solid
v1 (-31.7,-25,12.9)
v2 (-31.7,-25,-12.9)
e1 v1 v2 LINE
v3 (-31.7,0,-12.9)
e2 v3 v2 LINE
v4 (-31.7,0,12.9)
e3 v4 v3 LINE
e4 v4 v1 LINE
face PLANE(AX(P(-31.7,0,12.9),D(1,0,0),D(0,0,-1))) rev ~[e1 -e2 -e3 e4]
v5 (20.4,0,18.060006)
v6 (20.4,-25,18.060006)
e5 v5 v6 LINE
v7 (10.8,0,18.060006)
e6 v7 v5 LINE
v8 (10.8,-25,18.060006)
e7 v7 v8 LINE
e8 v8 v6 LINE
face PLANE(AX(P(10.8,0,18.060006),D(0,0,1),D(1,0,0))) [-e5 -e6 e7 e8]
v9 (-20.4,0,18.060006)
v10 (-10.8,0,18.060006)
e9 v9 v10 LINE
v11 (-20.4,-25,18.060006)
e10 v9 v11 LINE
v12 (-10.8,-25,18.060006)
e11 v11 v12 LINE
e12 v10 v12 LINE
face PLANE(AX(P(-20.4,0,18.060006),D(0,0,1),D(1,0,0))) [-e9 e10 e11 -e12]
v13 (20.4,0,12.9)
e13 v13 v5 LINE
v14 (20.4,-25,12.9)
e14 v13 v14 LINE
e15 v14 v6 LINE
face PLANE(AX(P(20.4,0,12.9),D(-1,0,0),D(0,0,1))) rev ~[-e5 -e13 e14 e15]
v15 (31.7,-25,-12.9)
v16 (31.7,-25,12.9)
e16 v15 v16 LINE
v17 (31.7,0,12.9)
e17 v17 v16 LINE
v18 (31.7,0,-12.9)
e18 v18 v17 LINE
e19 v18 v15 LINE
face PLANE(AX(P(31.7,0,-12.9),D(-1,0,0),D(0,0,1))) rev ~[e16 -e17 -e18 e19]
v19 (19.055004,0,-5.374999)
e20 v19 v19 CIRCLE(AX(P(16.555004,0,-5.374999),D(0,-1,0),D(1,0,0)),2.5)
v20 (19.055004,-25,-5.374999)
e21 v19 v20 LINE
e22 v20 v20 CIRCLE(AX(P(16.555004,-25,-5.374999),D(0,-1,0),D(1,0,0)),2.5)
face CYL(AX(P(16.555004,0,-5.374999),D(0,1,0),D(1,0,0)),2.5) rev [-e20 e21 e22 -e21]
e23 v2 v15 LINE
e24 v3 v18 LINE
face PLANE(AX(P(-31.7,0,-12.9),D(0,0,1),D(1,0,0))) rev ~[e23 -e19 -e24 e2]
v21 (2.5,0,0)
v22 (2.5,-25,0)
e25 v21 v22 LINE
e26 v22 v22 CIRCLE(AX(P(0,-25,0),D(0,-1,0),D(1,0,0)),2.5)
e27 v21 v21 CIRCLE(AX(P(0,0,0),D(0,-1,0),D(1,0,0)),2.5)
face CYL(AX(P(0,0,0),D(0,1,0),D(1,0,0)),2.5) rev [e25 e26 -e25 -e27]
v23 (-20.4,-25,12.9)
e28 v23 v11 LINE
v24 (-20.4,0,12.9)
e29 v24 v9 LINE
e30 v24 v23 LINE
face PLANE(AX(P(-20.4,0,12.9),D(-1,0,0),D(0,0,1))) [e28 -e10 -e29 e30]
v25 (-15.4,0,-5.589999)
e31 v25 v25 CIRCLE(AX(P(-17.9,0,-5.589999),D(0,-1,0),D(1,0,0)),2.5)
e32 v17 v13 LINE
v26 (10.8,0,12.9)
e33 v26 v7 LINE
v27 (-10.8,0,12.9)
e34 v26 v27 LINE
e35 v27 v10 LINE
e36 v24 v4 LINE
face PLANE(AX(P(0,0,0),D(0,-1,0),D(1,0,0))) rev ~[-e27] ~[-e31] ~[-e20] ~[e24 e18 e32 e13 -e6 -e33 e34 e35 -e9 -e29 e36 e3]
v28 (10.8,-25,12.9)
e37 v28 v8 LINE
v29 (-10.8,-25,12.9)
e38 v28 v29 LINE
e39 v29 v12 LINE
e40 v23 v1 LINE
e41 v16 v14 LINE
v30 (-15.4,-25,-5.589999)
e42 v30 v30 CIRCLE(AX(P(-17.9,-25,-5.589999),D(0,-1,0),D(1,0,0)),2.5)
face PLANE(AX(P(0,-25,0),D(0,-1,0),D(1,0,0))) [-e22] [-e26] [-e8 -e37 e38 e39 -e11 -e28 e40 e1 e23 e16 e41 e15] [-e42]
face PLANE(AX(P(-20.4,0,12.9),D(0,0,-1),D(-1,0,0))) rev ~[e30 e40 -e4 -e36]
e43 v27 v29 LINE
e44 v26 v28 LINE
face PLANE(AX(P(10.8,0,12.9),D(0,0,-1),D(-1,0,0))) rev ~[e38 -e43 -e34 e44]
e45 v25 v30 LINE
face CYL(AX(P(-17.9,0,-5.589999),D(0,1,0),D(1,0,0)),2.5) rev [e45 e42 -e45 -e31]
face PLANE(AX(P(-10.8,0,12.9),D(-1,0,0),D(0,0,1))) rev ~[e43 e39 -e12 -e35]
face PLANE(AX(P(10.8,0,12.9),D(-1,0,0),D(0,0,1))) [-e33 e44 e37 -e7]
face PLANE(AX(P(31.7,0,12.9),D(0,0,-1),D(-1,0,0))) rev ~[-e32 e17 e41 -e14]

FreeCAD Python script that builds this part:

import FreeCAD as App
import Part
import Sketcher

V = App.Vector
Q = App.Units.Quantity

doc = App.newDocument("Part")
params = doc.addObject("Spreadsheet::Sheet", "Params")
for row, (alias, value) in enumerate([
    ("sketch1_diameter", "5 mm"),
    ("sketch1_width", "63.4 mm"),
    ("sketch1_width2", "11.3 mm"),
    ("sketch1_width3", "9.6 mm"),
    ("sketch1_height", "25.8 mm"),
    ("pad1_length", "25 mm"),
], start=1):
    params.set(f"A{row}", alias)
    params.set(f"B{row}", "=" + value)
    params.setAlias(f"B{row}", alias)

body = doc.addObject("PartDesign::Body", "Body")

sketch1 = body.newObject("Sketcher::SketchObject", "Sketch")
sketch1.AttachmentSupport = (doc.getObject("XZ_Plane"), [""])
sketch1.MapMode = "FlatFace"
sketch1.addGeometry([
    Part.LineSegment(V(-31.7, 12.9, 0), V(-31.7, -12.9, 0)),
    Part.LineSegment(V(-31.7, -12.9, 0), V(31.7, -12.9, 0)),
    Part.LineSegment(V(31.7, -12.9, 0), V(31.7, 12.9, 0)),
    Part.LineSegment(V(31.7, 12.9, 0), V(20.4, 12.9, 0)),
    Part.LineSegment(V(20.4, 12.9, 0), V(20.4, 18.1, 0)),
    Part.LineSegment(V(20.4, 18.1, 0), V(10.8, 18.1, 0)),
    Part.LineSegment(V(10.8, 18.1, 0), V(10.8, 12.9, 0)),
    Part.LineSegment(V(10.8, 12.9, 0), V(-10.8, 12.9, 0)),
    Part.LineSegment(V(-10.8, 12.9, 0), V(-10.8, 18.1, 0)),
    Part.LineSegment(V(-10.8, 18.1, 0), V(-20.4, 18.1, 0)),
    Part.LineSegment(V(-20.4, 18.1, 0), V(-20.4, 12.9, 0)),
    Part.LineSegment(V(-20.4, 12.9, 0), V(-31.7, 12.9, 0)),
    Part.Circle(V(-17.9, -5.6, 0), V(0, 0, 1), 2.5),
    Part.Circle(V(16.6, -5.4, 0), V(0, 0, 1), 2.5),
    Part.Circle(V(0, 0, 0), V(0, 0, 1), 2.5),
], False)
sketch1.addConstraint([
    Sketcher.Constraint("Coincident", 0, 2, 1, 1),
    Sketcher.Constraint("Coincident", 1, 2, 2, 1),
    Sketcher.Constraint("Coincident", 2, 2, 3, 1),
    Sketcher.Constraint("Coincident", 3, 2, 4, 1),
    Sketcher.Constraint("Coincident", 4, 2, 5, 1),
    Sketcher.Constraint("Coincident", 5, 2, 6, 1),
    Sketcher.Constraint("Coincident", 6, 2, 7, 1),
    Sketcher.Constraint("Coincident", 7, 2, 8, 1),
    Sketcher.Constraint("Coincident", 8, 2, 9, 1),
    Sketcher.Constraint("Coincident", 9, 2, 10, 1),
    Sketcher.Constraint("Coincident", 10, 2, 11, 1),
    Sketcher.Constraint("Coincident", 11, 2, 0, 1),
    Sketcher.Constraint("Vertical", 0),
    Sketcher.Constraint("Horizontal", 1),
    Sketcher.Constraint("Vertical", 2),
    Sketcher.Constraint("Horizontal", 3),
    Sketcher.Constraint("Vertical", 4),
    Sketcher.Constraint("Horizontal", 5),
    Sketcher.Constraint("Vertical", 6),
    Sketcher.Constraint("Horizontal", 7),
    Sketcher.Constraint("Vertical", 8),
    Sketcher.Constraint("Horizontal", 9),
    Sketcher.Constraint("Vertical", 10),
    Sketcher.Constraint("Horizontal", 11),
    Sketcher.Constraint("Coincident", 14, 3, -1, 1),
    Sketcher.Constraint("Equal", 12, 13),
    Sketcher.Constraint("Equal", 13, 14),
    Sketcher.Constraint("Symmetric", 0, 2, 2, 2, -1, 1),
    Sketcher.Constraint("Symmetric", 5, 2, 8, 2, -2),
    Sketcher.Constraint("Symmetric", 3, 2, 10, 2, -2),
    Sketcher.Constraint("Horizontal", 3, 2, 6, 2),
    Sketcher.Constraint("Diameter", 12, Q("5 mm")),
    Sketcher.Constraint("DistanceX", 1, 1, 1, 2, Q("63.4 mm")),
    Sketcher.Constraint("DistanceX", 3, 2, 3, 1, Q("11.3 mm")),
    Sketcher.Constraint("DistanceX", 5, 2, 5, 1, Q("9.6 mm")),
    Sketcher.Constraint("DistanceY", 0, 2, 0, 1, Q("25.8 mm")),
    Sketcher.Constraint("DistanceX", 12, 3, -1, 1, Q("17.9 mm")),
    Sketcher.Constraint("DistanceY", 12, 3, -1, 1, Q("5.589999 mm")),
    Sketcher.Constraint("DistanceY", 13, 3, -1, 1, Q("5.374999 mm")),
    Sketcher.Constraint("DistanceY", 4, 1, 4, 2, Q("5.160006 mm")),
    Sketcher.Constraint("DistanceX", -1, 1, 13, 3, Q("16.555004 mm")),
])
sketch1.setExpression("Constraints[31]", "Params.sketch1_diameter")
sketch1.setExpression("Constraints[32]", "Params.sketch1_width")
sketch1.setExpression("Constraints[33]", "Params.sketch1_width2")
sketch1.setExpression("Constraints[34]", "Params.sketch1_width3")
sketch1.setExpression("Constraints[35]", "Params.sketch1_height")
pad1 = body.newObject("PartDesign::Pad", "Pad")
pad1.Profile = sketch1
pad1.setExpression("Length", "Params.pad1_length")

doc.recompute()
